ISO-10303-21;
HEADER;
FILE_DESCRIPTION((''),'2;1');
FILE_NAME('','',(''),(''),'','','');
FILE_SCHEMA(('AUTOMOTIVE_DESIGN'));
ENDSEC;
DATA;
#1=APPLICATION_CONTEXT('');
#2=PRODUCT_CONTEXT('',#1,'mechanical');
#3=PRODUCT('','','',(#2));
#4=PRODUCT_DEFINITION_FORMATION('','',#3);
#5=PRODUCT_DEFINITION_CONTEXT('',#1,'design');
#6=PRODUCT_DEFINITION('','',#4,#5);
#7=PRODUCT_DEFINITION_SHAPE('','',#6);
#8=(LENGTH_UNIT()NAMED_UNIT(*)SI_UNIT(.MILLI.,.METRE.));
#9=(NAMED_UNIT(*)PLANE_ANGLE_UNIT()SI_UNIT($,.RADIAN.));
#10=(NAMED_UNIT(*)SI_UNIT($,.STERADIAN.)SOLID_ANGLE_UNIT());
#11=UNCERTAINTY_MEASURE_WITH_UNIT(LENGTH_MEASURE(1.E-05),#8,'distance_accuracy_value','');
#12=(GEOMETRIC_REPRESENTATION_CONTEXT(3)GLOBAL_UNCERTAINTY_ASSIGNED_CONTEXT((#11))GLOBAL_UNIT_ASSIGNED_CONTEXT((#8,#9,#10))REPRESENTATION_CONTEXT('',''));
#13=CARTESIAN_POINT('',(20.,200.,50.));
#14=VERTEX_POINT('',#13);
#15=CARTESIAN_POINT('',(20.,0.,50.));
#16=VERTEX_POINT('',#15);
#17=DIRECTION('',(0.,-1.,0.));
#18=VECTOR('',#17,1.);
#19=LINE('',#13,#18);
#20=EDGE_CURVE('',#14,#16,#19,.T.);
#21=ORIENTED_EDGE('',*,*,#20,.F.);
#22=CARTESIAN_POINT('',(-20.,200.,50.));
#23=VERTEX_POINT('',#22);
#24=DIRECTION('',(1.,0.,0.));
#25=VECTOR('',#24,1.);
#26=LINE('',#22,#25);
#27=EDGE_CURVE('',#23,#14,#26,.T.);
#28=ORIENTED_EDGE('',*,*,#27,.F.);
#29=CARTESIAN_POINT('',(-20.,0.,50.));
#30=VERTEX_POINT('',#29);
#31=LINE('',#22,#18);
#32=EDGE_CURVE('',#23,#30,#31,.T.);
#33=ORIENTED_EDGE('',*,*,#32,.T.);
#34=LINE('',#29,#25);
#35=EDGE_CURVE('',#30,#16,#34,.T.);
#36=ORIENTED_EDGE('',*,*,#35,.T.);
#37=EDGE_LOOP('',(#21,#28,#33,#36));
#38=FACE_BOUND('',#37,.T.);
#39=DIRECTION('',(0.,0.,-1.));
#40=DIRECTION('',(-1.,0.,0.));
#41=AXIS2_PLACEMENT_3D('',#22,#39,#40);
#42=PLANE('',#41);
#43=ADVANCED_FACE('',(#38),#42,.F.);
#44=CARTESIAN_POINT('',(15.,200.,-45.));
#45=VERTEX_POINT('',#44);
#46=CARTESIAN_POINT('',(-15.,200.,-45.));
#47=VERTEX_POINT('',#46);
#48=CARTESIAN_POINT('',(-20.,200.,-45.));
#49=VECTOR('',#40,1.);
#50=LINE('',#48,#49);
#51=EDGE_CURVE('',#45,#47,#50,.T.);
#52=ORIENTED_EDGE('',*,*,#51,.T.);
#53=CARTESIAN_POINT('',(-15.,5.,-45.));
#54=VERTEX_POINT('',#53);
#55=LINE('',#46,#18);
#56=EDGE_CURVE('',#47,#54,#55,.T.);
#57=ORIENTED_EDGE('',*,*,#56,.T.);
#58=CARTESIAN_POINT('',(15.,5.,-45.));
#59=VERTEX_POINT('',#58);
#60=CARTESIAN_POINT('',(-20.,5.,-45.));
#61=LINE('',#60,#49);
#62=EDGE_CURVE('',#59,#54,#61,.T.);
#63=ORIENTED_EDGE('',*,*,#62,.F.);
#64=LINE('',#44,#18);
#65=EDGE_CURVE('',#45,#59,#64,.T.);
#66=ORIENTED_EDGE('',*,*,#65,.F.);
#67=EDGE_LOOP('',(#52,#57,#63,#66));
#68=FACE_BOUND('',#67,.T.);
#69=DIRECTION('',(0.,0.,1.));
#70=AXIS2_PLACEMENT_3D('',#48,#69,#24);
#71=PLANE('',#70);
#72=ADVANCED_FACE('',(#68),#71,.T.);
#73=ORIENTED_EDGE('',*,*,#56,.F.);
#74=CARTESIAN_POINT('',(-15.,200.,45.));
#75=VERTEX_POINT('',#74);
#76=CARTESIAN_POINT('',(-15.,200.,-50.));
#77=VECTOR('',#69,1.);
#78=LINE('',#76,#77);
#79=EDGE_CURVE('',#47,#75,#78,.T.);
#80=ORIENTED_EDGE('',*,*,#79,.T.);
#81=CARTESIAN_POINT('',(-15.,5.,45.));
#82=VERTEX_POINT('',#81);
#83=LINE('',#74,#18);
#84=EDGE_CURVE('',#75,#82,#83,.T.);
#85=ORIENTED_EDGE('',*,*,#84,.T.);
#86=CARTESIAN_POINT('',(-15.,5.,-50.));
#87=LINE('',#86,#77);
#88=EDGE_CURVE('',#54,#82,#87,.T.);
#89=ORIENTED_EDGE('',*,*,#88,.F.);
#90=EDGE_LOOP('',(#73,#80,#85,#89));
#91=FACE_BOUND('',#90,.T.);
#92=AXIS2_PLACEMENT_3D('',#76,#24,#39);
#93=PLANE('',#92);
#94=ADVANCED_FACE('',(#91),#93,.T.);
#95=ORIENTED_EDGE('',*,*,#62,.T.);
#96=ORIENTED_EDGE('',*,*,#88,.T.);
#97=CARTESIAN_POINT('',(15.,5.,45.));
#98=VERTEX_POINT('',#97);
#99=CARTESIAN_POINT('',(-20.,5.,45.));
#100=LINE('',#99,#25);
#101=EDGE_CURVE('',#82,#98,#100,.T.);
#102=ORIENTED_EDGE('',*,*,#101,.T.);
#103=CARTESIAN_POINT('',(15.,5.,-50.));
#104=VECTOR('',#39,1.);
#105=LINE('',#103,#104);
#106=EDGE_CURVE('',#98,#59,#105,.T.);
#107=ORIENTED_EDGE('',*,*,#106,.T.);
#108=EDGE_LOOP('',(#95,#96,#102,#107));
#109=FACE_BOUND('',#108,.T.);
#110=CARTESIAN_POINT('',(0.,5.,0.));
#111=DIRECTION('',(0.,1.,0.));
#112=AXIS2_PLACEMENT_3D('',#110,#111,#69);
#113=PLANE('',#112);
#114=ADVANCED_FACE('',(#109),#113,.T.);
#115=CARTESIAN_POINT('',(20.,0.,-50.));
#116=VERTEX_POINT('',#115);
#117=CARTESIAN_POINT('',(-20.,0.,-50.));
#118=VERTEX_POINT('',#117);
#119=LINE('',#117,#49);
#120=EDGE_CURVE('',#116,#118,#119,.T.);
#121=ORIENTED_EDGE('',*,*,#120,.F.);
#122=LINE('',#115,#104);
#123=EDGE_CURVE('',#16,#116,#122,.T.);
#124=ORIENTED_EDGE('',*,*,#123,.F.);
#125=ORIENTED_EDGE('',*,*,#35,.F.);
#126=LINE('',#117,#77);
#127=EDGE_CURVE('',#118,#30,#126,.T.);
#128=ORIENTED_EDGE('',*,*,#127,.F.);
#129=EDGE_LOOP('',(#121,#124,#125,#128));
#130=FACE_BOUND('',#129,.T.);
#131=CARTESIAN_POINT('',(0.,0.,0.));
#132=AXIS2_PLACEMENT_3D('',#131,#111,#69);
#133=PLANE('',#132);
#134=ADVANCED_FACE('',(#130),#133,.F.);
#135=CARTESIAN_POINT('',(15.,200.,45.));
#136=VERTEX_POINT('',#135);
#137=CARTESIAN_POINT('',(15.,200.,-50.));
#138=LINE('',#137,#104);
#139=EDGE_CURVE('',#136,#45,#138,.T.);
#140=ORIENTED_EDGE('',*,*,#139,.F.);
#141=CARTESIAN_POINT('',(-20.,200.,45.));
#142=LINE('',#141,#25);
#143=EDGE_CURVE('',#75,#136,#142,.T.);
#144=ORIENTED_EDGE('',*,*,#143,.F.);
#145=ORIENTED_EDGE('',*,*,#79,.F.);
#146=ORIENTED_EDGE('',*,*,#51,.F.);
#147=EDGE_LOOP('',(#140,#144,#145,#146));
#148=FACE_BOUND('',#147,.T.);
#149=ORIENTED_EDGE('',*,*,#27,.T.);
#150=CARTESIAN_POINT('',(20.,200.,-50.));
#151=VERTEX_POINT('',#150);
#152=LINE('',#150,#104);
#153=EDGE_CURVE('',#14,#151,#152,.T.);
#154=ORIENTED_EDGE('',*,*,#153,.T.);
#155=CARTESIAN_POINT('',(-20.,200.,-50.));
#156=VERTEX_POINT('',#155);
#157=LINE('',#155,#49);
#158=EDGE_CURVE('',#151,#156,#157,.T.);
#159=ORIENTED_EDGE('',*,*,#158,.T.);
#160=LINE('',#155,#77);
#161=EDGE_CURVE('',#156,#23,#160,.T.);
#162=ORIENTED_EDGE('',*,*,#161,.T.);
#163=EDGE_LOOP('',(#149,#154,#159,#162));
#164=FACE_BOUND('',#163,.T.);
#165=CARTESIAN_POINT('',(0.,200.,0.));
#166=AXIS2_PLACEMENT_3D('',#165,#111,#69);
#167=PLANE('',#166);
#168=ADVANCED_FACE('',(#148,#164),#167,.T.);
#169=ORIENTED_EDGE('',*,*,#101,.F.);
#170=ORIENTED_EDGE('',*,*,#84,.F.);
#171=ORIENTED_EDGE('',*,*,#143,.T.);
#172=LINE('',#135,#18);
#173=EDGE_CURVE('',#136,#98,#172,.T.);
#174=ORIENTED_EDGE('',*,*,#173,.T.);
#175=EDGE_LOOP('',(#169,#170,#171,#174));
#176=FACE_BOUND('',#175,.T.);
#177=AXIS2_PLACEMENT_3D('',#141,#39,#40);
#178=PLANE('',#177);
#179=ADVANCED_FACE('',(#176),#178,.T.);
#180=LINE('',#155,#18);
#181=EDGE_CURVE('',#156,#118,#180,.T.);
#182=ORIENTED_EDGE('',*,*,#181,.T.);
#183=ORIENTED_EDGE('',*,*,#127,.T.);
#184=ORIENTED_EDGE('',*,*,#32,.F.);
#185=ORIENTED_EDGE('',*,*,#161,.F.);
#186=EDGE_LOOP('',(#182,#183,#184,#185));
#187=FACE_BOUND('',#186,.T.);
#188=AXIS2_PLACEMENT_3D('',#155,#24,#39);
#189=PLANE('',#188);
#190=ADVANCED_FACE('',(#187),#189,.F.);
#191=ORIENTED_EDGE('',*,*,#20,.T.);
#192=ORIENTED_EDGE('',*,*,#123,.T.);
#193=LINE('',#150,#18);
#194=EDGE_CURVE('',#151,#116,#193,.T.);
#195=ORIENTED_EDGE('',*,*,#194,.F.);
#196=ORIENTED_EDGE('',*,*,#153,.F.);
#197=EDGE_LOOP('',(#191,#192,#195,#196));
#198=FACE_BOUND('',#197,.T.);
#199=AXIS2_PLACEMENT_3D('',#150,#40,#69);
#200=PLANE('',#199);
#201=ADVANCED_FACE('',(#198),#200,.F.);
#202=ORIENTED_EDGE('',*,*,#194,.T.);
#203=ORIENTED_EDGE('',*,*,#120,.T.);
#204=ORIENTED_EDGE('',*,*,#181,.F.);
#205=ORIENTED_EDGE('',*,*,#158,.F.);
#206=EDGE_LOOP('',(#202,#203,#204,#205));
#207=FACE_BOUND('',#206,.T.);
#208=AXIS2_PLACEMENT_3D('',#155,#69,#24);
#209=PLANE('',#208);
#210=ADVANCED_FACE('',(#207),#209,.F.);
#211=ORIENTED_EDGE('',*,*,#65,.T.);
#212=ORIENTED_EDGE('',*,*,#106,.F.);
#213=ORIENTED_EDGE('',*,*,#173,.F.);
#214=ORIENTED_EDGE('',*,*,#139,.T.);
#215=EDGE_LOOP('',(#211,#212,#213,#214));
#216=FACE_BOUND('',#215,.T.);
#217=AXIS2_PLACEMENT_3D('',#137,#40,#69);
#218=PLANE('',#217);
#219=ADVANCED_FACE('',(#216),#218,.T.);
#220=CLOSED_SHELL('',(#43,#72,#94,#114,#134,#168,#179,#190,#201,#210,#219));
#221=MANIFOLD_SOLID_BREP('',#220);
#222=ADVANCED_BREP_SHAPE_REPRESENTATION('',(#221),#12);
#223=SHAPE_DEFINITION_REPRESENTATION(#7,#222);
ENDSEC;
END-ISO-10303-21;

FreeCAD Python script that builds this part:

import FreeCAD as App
import Part
import Sketcher
from FreeCAD import Vector
Q = App.Units.Quantity


def faces_at(feature, points):
    """Names of the faces that lie closest to the given points."""
    faces = feature.Shape.Faces
    near = lambda p: min(range(len(faces)), key=lambda i: faces[i].distToShape(Part.Vertex(*p))[0])
    return sorted({f"Face{near(p) + 1}" for p in points})

doc = App.newDocument("Part")
body = doc.addObject("PartDesign::Body", "Body")

sketch1 = body.newObject("Sketcher::SketchObject", "Sketch")
sketch1.AttachmentSupport = (doc.getObject("XZ_Plane"), [""])
sketch1.MapMode = "FlatFace"
sketch1.addGeometry([
    Part.LineSegment(Vector(-20, -50, 0), Vector(-20, 50, 0)),
    Part.LineSegment(Vector(-20, 50, 0), Vector(20, 50, 0)),
    Part.LineSegment(Vector(20, 50, 0), Vector(20, -50, 0)),
    Part.LineSegment(Vector(20, -50, 0), Vector(-20, -50, 0)),
], False)
sketch1.addConstraint([
    Sketcher.Constraint("Coincident", 0, 2, 1, 1),
    Sketcher.Constraint("Coincident", 1, 2, 2, 1),
    Sketcher.Constraint("Coincident", 2, 2, 3, 1),
    Sketcher.Constraint("Coincident", 3, 2, 0, 1),
    Sketcher.Constraint("Vertical", 0),
    Sketcher.Constraint("Horizontal", 1),
    Sketcher.Constraint("Vertical", 2),
    Sketcher.Constraint("Horizontal", 3),
    Sketcher.Constraint("Symmetric", 0, 2, 2, 2, -1, 1),
    Sketcher.Constraint("DistanceX", 1, 1, 1, 2, Q("40 mm")),
    Sketcher.Constraint("DistanceY", 0, 1, 0, 2, Q("100 mm")),
])
pad1 = body.newObject("PartDesign::Pad", "Pad")
pad1.Profile = sketch1
pad1.Length = 200
pad1.Reversed = True
doc.recompute()

thickness = body.newObject("PartDesign::Thickness", "Thickness")
thickness.Base = (pad1, faces_at(pad1, [(0, 200, 0)]))
thickness.Value = 5
thickness.Reversed = True
thickness.Join = "Intersection"

doc.recompute()
